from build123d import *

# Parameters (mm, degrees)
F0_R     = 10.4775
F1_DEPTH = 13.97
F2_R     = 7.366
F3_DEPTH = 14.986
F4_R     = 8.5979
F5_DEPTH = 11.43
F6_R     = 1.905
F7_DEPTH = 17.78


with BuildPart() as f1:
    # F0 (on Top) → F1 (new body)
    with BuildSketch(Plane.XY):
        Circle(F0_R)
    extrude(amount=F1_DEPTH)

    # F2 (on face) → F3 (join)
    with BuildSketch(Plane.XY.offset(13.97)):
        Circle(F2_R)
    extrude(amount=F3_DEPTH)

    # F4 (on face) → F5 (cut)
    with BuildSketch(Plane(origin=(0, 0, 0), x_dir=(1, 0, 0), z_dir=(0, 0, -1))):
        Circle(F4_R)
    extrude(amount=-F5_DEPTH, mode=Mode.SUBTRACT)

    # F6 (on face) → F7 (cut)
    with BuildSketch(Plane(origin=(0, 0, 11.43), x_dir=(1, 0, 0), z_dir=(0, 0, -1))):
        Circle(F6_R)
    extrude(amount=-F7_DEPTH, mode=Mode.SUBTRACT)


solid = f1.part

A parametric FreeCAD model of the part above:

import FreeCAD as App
import Part
import Sketcher

V = App.Vector
Q = App.Units.Quantity

doc = App.newDocument("Part")
body = doc.addObject("PartDesign::Body", "Body")

sketch1 = body.newObject("Sketcher::SketchObject", "Sketch")
sketch1.AttachmentSupport = (doc.getObject("XY_Plane"), [""])
sketch1.MapMode = "FlatFace"
sketch1.addGeometry(Part.Circle(V(0, 0, 0), V(0, 0, 1), 10), False)
sketch1.addConstraint(Sketcher.Constraint("Coincident", 0, 3, -1, 1))
sketch1.addConstraint(Sketcher.Constraint("Diameter", 0, Q("0.825 in")))
pad1 = body.newObject("PartDesign::Pad", "Pad")
pad1.Profile = sketch1
pad1.Length = Q("0.55 in")

sketch2 = body.newObject("Sketcher::SketchObject", "Sketch001")
sketch2.AttachmentSupport = (doc.getObject("XY_Plane"), [""])
sketch2.MapMode = "FlatFace"
sketch2.AttachmentOffset = App.Placement(V(0, 0, 0.55 * 25.4), App.Rotation())
sketch2.addGeometry(Part.Circle(V(0, 0, 0), V(0, 0, 1), 7), False)
sketch2.addConstraint(Sketcher.Constraint("Coincident", 0, 3, -1, 1))
sketch2.addConstraint(Sketcher.Constraint("Diameter", 0, Q("0.58 in")))
pad2 = body.newObject("PartDesign::Pad", "Pad001")
pad2.Profile = sketch2
pad2.Length = Q("0.59 in")

sketch3 = body.newObject("Sketcher::SketchObject", "Sketch002")
sketch3.AttachmentSupport = (doc.getObject("XY_Plane"), [""])
sketch3.MapMode = "FlatFace"
sketch3.addGeometry(Part.Circle(V(0, 0, 0), V(0, 0, 1), 9), False)
sketch3.addConstraint(Sketcher.Constraint("Coincident", 0, 3, -1, 1))
sketch3.addConstraint(Sketcher.Constraint("Diameter", 0, Q("0.677 in")))
pocket1 = body.newObject("PartDesign::Pocket", "Pocket")
pocket1.Profile = sketch3
pocket1.Length = Q("0.45 in")
pocket1.Reversed = True

sketch4 = body.newObject("Sketcher::SketchObject", "Sketch003")
sketch4.AttachmentSupport = (doc.getObject("XY_Plane"), [""])
sketch4.MapMode = "FlatFace"
sketch4.AttachmentOffset = App.Placement(V(0, 0, 0.45 * 25.4), App.Rotation())
sketch4.addGeometry(Part.Circle(V(0, 0, 0), V(0, 0, 1), 1.9), False)
sketch4.addConstraint(Sketcher.Constraint("Coincident", 0, 3, -1, 1))
sketch4.addConstraint(Sketcher.Constraint("Diameter", 0, Q("0.15 in")))
pocket2 = body.newObject("PartDesign::Pocket", "Pocket001")
pocket2.Profile = sketch4
pocket2.Length = Q("0.7 in")
pocket2.Reversed = True

doc.recompute()
